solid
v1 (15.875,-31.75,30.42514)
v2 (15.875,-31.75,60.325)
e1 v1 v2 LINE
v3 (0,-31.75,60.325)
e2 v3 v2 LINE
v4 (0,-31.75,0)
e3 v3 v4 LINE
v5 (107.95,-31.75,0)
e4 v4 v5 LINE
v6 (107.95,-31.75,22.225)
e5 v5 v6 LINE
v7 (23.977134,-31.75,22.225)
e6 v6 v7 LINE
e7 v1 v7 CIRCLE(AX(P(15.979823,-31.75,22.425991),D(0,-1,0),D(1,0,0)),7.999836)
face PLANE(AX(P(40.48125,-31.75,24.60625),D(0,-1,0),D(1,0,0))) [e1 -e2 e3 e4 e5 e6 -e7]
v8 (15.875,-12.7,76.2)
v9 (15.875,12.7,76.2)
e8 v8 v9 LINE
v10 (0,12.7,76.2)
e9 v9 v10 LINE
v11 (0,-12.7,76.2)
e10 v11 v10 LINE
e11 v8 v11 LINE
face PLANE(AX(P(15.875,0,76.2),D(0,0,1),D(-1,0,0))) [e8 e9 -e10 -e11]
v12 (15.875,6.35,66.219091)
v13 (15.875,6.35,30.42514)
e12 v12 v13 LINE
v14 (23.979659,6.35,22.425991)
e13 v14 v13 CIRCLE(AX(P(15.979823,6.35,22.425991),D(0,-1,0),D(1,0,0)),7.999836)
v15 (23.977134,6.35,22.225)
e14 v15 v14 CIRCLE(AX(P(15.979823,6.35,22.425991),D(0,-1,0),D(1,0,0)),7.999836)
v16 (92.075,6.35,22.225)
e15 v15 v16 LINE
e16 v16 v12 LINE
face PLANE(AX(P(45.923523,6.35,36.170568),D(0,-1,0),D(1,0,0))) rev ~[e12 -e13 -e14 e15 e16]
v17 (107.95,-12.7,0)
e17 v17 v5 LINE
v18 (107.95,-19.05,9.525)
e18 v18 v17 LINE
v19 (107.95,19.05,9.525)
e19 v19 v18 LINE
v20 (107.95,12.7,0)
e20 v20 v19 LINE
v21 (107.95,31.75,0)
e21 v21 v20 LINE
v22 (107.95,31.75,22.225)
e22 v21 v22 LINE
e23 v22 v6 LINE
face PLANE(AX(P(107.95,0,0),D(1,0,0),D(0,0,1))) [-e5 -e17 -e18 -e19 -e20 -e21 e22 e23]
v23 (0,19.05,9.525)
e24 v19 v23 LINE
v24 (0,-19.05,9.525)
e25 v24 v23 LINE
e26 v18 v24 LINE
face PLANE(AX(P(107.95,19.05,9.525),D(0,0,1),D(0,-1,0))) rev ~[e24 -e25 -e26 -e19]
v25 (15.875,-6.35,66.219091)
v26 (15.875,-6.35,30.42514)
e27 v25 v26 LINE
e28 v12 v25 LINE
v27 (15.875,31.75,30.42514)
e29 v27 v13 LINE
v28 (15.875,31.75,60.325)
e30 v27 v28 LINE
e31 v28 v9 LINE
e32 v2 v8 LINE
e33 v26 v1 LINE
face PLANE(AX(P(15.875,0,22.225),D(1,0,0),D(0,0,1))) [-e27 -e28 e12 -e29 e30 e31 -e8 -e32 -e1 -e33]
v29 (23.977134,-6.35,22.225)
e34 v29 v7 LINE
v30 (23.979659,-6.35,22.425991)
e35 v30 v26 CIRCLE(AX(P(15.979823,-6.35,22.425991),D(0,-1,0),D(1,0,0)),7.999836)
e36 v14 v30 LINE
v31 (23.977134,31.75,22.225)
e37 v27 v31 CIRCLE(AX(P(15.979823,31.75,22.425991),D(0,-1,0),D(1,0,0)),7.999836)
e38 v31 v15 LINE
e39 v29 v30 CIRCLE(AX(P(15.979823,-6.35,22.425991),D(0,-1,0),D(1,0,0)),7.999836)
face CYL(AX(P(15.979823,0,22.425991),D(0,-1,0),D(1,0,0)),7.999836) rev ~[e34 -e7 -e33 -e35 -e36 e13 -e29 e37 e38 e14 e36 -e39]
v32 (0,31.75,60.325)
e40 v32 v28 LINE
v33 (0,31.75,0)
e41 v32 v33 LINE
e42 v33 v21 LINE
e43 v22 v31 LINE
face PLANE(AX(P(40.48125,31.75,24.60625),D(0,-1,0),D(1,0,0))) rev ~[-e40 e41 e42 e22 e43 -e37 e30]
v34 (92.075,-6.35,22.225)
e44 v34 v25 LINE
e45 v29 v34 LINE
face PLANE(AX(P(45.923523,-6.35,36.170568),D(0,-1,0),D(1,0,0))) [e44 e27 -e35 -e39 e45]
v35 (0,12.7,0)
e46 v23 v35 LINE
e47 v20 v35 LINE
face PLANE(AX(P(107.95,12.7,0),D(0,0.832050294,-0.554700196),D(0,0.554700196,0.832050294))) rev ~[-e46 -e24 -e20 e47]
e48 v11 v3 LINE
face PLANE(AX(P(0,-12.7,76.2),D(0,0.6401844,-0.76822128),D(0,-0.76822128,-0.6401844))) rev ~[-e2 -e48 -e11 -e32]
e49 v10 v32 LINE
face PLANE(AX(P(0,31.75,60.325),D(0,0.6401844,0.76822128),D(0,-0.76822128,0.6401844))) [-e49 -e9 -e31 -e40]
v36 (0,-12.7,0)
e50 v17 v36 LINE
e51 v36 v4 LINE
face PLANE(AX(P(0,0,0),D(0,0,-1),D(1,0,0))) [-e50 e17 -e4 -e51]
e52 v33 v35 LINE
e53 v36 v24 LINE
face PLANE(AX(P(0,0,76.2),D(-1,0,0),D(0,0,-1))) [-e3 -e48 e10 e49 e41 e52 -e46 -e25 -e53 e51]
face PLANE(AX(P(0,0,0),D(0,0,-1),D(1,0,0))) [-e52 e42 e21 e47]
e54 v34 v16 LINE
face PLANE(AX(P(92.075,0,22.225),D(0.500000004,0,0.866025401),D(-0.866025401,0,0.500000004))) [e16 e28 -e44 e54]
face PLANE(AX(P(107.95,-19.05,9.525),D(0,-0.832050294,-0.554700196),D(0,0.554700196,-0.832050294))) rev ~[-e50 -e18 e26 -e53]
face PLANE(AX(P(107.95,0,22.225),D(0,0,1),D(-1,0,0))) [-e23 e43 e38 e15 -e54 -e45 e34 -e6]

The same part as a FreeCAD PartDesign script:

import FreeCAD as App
import Part
import Sketcher
from FreeCAD import Vector
Q = App.Units.Quantity


def add_polygon(sketch, points):
    """Adds a closed chain of lines whose ends are joined by coincident constraints."""
    first, n = sketch.GeometryCount, len(points)
    for a, b in zip(points, points[1:] + points[:1]):
        sketch.addGeometry(Part.LineSegment(App.Vector(*a, 0), App.Vector(*b, 0)), False)
    for i in range(n):
        sketch.addConstraint(Sketcher.Constraint("Coincident", first + i, 2, first + (i + 1) % n, 1))

doc = App.newDocument("Part")
body = doc.addObject("PartDesign::Body", "Body")

sketch1 = body.newObject("Sketcher::SketchObject", "Sketch")
sketch1.AttachmentSupport = (doc.getObject("XZ_Plane"), [""])
sketch1.MapMode = "FlatFace"
add_polygon(sketch1, [(0, 76), (0, 0), (108, 0), (108, 22), (16, 22), (16, 76)])
sketch1.addConstraint(Sketcher.Constraint("Vertical", 0))
sketch1.addConstraint(Sketcher.Constraint("Horizontal", 1))
sketch1.addConstraint(Sketcher.Constraint("Vertical", 2))
sketch1.addConstraint(Sketcher.Constraint("Horizontal", 3))
sketch1.addConstraint(Sketcher.Constraint("Vertical", 4))
sketch1.addConstraint(Sketcher.Constraint("Horizontal", 5))
sketch1.addConstraint(Sketcher.Constraint("Coincident", 0, 2, -1, 1))
sketch1.addConstraint(Sketcher.Constraint("DistanceY", 0, 2, 0, 1, Q("3 in")))
sketch1.addConstraint(Sketcher.Constraint("DistanceX", 1, 1, 1, 2, Q("4.25 in")))
sketch1.addConstraint(Sketcher.Constraint("DistanceX", 3, 2, 3, 1, Q("3.625 in")))
sketch1.addConstraint(Sketcher.Constraint("DistanceY", 2, 1, 2, 2, Q("0.875 in")))
pad1 = body.newObject("PartDesign::Pad", "Pad")
pad1.Profile = sketch1
pad1.Length = Q("2.5 in")
pad1.Midplane = True

sketch2 = body.newObject("Sketcher::SketchObject", "Sketch001")
sketch2.AttachmentSupport = (doc.getObject("YZ_Plane"), [""])
sketch2.MapMode = "FlatFace"
sketch2.AttachmentOffset = App.Placement(Vector(0, 0, 4.25 * 25.4), App.Rotation())
add_polygon(sketch2, [(-13, 0), (13, 0), (19, 10), (-19, 10)])
sketch2.addConstraint(Sketcher.Constraint("Horizontal", 0))
sketch2.addConstraint(Sketcher.Constraint("Horizontal", 2))
sketch2.addConstraint(Sketcher.Constraint("Symmetric", 0, 2, 3, 2, -1, 1))
sketch2.addConstraint(Sketcher.Constraint("Equal", 1, 3))
sketch2.addConstraint(Sketcher.Constraint("DistanceX", 0, 1, 0, 2, Q("1 in")))
sketch2.addConstraint(Sketcher.Constraint("DistanceX", 2, 2, 2, 1, Q("1.5 in")))
sketch2.addConstraint(Sketcher.Constraint("DistanceY", -1, 1, 1, 2, Q("0.375 in")))
pocket1 = body.newObject("PartDesign::Pocket", "Pocket")
pocket1.Profile = sketch2
pocket1.Type = "ThroughAll"

sketch3 = body.newObject("Sketcher::SketchObject", "Sketch002")
sketch3.AttachmentSupport = (doc.getObject("XZ_Plane"), [""])
sketch3.MapMode = "FlatFace"
add_polygon(sketch3, [(92, 22), (16, 66), (16, 22)])
sketch3.addConstraint(Sketcher.Constraint("Vertical", 1))
sketch3.addConstraint(Sketcher.Constraint("Horizontal", 2))
sketch3.addConstraint(Sketcher.Constraint("DistanceX", 2, 1, 2, 2, Q("3 in")))
sketch3.addConstraint(Sketcher.Constraint("Angle", 0, Q("150 deg")))
sketch3.addConstraint(Sketcher.Constraint("DistanceX", -1, 1, 0, 2, Q("0.625 in")))
sketch3.addConstraint(Sketcher.Constraint("DistanceY", -1, 1, 1, 2, Q("0.875 in")))
pad2 = body.newObject("PartDesign::Pad", "Pad001")
pad2.Profile = sketch3
pad2.Length = Q("0.5 in")
pad2.Midplane = True

sketch4 = body.newObject("Sketcher::SketchObject", "Sketch003")
sketch4.AttachmentSupport = (doc.getObject("YZ_Plane"), [""])
sketch4.MapMode = "FlatFace"
add_polygon(sketch4, [(32, 60), (13, 76), (32, 76)])
add_polygon(sketch4, [(-32, 76), (-13, 76), (-32, 60)])
sketch4.addConstraint(Sketcher.Constraint("Horizontal", 1))
sketch4.addConstraint(Sketcher.Constraint("Vertical", 2))
sketch4.addConstraint(Sketcher.Constraint("Horizontal", 3))
sketch4.addConstraint(Sketcher.Constraint("Vertical", 5))
sketch4.addConstraint(Sketcher.Constraint("Symmetric", 0, 2, 3, 2, -2))
sketch4.addConstraint(Sketcher.Constraint("Symmetric", 2, 2, 4, 2, -2))
sketch4.addConstraint(Sketcher.Constraint("DistanceY", -1, 1, 0, 2, Q("3 in")))
sketch4.addConstraint(Sketcher.Constraint("DistanceX", 3, 2, 0, 2, Q("1 in")))
sketch4.addConstraint(Sketcher.Constraint("DistanceX", 1, 1, 1, 2, Q("0.75 in")))
sketch4.addConstraint(Sketcher.Constraint("DistanceY", 2, 2, 2, 1, Q("0.625 in")))
pocket2 = body.newObject("PartDesign::Pocket", "Pocket001")
pocket2.Profile = sketch4
pocket2.Length = Q("3 in")
pocket2.Midplane = True

sketch5 = body.newObject("Sketcher::SketchObject", "Sketch004")
sketch5.AttachmentSupport = (doc.getObject("YZ_Plane"), [""])
sketch5.MapMode = "FlatFace"
add_polygon(sketch5, [(32, 60), (13, 76), (32, 76)])
add_polygon(sketch5, [(-32, 76), (-13, 76), (-32, 60)])
sketch5.addConstraint(Sketcher.Constraint("Horizontal", 1))
sketch5.addConstraint(Sketcher.Constraint("Vertical", 2))
sketch5.addConstraint(Sketcher.Constraint("Horizontal", 3))
sketch5.addConstraint(Sketcher.Constraint("Vertical", 5))
sketch5.addConstraint(Sketcher.Constraint("Symmetric", 0, 2, 3, 2, -2))
sketch5.addConstraint(Sketcher.Constraint("Symmetric", 2, 2, 4, 2, -2))
sketch5.addConstraint(Sketcher.Constraint("DistanceY", -1, 1, 0, 2, Q("3 in")))
sketch5.addConstraint(Sketcher.Constraint("DistanceX", 3, 2, 0, 2, Q("1 in")))
sketch5.addConstraint(Sketcher.Constraint("DistanceX", 1, 1, 1, 2, Q("0.75 in")))
sketch5.addConstraint(Sketcher.Constraint("DistanceY", 2, 2, 2, 1, Q("0.625 in")))
pocket3 = body.newObject("PartDesign::Pocket", "Pocket002")
pocket3.Profile = sketch5
pocket3.Length = Q("1 in")
pocket3.Reversed = True

sketch6 = body.newObject("Sketcher::SketchObject", "Sketch005")
sketch6.AttachmentSupport = (doc.getObject("XZ_Plane"), [""])
sketch6.MapMode = "FlatFace"
sketch6.addGeometry(Part.Circle(Vector(16, 22, 0), Vector(0, 0, 1), 8), False)
sketch6.addConstraint(Sketcher.Constraint("Diameter", 0, 15.999672))
sketch6.addConstraint(Sketcher.Constraint("DistanceY", -1, 1, 0, 3, 22.425991))
sketch6.addConstraint(Sketcher.Constraint("DistanceX", -1, 1, 0, 3, 15.979823))
pocket4 = body.newObject("PartDesign::Pocket", "Pocket003")
pocket4.Profile = sketch6
pocket4.Length = Q("10 in")
pocket4.Midplane = True

doc.recompute()
